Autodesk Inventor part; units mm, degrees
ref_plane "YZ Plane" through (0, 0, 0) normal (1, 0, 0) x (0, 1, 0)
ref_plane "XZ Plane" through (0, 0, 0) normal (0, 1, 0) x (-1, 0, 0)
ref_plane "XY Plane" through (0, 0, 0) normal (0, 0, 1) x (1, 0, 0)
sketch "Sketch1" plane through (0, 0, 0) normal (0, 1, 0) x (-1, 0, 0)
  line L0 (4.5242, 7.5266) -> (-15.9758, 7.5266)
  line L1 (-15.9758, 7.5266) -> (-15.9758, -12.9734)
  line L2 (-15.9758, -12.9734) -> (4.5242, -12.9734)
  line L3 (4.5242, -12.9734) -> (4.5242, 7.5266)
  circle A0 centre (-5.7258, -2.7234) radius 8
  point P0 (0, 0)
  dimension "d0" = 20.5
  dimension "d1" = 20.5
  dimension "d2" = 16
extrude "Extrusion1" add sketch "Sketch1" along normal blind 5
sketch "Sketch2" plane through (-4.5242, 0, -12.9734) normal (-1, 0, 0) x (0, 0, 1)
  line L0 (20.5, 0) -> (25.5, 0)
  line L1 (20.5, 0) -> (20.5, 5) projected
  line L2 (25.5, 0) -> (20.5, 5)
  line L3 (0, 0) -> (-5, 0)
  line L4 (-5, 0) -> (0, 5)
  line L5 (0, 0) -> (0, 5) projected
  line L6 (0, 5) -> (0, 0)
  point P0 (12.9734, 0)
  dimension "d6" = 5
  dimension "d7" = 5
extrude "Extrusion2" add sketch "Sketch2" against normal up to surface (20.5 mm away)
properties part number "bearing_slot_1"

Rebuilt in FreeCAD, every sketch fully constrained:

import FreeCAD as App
import Part
import Sketcher


def add_polygon(sketch, points):
    """Adds a closed chain of lines whose ends are joined by coincident constraints."""
    first, n = sketch.GeometryCount, len(points)
    for a, b in zip(points, points[1:] + points[:1]):
        sketch.addGeometry(Part.LineSegment(App.Vector(*a, 0), App.Vector(*b, 0)), False)
    for i in range(n):
        sketch.addConstraint(Sketcher.Constraint("Coincident", first + i, 2, first + (i + 1) % n, 1))

doc = App.newDocument("Part")
body = doc.addObject("PartDesign::Body", "Body")

# Sketch on XZ plane
sketch1 = body.newObject("Sketcher::SketchObject", "Sketch")
sketch1.AttachmentSupport = (doc.getObject("XZ_Plane"), [""])
sketch1.MapMode = "FlatFace"
add_polygon(sketch1, [(-5, -13), (-5, 8), (16, 8), (16, -13)])  # lines 0-3
sketch1.addGeometry(Part.Circle(App.Vector(6, -3, 0), App.Vector(0, 0, 1), 8), False)  # 4
sketch1.addConstraint([
    Sketcher.Constraint("Vertical", 0),
    Sketcher.Constraint("Horizontal", 1),
    Sketcher.Constraint("Vertical", 2),
    Sketcher.Constraint("Horizontal", 3),
    Sketcher.Constraint("Equal", 3, 0),
    Sketcher.Constraint("Diameter", 4, 16.0),
    Sketcher.Constraint("DistanceX", 1, 1, 1, 2, 20.5),
    Sketcher.Constraint("DistanceX", 0, 2, 4, 3, 10.25),
    Sketcher.Constraint("DistanceY", 4, 3, 0, 2, 10.25),
    Sketcher.Constraint("DistanceX", -1, 1, 4, 3, 5.7258),
    Sketcher.Constraint("DistanceY", 4, 3, -1, 1, 2.7234),
])
pad1 = body.newObject("PartDesign::Pad", "Pad")
pad1.Profile = sketch1
pad1.Length = 5
pad1.Reversed = True

# Sketch on YZ plane
sketch2 = body.newObject("Sketcher::SketchObject", "Sketch001")
sketch2.AttachmentSupport = (doc.getObject("YZ_Plane"), [""])
sketch2.MapMode = "FlatFace"
sketch2.AttachmentOffset = App.Placement(App.Vector(0, 0, -4.5242), App.Rotation())
add_polygon(sketch2, [(5, 8), (0, 8), (0, 13)])  # lines 0-2
add_polygon(sketch2, [(0, -18), (0, -13), (5, -13)])  # lines 3-5
sketch2.addConstraint([
    Sketcher.Constraint("Horizontal", 0),
    Sketcher.Constraint("Vertical", 1),
    Sketcher.Constraint("Vertical", 3),
    Sketcher.Constraint("Horizontal", 4),
    Sketcher.Constraint("PointOnObject", 0, 2, -2),
    Sketcher.Constraint("PointOnObject", 3, 2, -2),
    Sketcher.Constraint("Perpendicular", 2, 5),
    Sketcher.Constraint("Vertical", 2, 2, 4, 2),
    Sketcher.Constraint("Equal", 4, 1),
    Sketcher.Constraint("DistanceX", 0, 2, 0, 1, 5.0),
    Sketcher.Constraint("DistanceY", 3, 2, 0, 2, 20.5),
    Sketcher.Constraint("DistanceY", -1, 1, 0, 2, 7.5266),
])
pad2 = body.newObject("PartDesign::Pad", "Pad001")
pad2.Profile = sketch2
pad2.Length = 20.5

doc.recompute()
